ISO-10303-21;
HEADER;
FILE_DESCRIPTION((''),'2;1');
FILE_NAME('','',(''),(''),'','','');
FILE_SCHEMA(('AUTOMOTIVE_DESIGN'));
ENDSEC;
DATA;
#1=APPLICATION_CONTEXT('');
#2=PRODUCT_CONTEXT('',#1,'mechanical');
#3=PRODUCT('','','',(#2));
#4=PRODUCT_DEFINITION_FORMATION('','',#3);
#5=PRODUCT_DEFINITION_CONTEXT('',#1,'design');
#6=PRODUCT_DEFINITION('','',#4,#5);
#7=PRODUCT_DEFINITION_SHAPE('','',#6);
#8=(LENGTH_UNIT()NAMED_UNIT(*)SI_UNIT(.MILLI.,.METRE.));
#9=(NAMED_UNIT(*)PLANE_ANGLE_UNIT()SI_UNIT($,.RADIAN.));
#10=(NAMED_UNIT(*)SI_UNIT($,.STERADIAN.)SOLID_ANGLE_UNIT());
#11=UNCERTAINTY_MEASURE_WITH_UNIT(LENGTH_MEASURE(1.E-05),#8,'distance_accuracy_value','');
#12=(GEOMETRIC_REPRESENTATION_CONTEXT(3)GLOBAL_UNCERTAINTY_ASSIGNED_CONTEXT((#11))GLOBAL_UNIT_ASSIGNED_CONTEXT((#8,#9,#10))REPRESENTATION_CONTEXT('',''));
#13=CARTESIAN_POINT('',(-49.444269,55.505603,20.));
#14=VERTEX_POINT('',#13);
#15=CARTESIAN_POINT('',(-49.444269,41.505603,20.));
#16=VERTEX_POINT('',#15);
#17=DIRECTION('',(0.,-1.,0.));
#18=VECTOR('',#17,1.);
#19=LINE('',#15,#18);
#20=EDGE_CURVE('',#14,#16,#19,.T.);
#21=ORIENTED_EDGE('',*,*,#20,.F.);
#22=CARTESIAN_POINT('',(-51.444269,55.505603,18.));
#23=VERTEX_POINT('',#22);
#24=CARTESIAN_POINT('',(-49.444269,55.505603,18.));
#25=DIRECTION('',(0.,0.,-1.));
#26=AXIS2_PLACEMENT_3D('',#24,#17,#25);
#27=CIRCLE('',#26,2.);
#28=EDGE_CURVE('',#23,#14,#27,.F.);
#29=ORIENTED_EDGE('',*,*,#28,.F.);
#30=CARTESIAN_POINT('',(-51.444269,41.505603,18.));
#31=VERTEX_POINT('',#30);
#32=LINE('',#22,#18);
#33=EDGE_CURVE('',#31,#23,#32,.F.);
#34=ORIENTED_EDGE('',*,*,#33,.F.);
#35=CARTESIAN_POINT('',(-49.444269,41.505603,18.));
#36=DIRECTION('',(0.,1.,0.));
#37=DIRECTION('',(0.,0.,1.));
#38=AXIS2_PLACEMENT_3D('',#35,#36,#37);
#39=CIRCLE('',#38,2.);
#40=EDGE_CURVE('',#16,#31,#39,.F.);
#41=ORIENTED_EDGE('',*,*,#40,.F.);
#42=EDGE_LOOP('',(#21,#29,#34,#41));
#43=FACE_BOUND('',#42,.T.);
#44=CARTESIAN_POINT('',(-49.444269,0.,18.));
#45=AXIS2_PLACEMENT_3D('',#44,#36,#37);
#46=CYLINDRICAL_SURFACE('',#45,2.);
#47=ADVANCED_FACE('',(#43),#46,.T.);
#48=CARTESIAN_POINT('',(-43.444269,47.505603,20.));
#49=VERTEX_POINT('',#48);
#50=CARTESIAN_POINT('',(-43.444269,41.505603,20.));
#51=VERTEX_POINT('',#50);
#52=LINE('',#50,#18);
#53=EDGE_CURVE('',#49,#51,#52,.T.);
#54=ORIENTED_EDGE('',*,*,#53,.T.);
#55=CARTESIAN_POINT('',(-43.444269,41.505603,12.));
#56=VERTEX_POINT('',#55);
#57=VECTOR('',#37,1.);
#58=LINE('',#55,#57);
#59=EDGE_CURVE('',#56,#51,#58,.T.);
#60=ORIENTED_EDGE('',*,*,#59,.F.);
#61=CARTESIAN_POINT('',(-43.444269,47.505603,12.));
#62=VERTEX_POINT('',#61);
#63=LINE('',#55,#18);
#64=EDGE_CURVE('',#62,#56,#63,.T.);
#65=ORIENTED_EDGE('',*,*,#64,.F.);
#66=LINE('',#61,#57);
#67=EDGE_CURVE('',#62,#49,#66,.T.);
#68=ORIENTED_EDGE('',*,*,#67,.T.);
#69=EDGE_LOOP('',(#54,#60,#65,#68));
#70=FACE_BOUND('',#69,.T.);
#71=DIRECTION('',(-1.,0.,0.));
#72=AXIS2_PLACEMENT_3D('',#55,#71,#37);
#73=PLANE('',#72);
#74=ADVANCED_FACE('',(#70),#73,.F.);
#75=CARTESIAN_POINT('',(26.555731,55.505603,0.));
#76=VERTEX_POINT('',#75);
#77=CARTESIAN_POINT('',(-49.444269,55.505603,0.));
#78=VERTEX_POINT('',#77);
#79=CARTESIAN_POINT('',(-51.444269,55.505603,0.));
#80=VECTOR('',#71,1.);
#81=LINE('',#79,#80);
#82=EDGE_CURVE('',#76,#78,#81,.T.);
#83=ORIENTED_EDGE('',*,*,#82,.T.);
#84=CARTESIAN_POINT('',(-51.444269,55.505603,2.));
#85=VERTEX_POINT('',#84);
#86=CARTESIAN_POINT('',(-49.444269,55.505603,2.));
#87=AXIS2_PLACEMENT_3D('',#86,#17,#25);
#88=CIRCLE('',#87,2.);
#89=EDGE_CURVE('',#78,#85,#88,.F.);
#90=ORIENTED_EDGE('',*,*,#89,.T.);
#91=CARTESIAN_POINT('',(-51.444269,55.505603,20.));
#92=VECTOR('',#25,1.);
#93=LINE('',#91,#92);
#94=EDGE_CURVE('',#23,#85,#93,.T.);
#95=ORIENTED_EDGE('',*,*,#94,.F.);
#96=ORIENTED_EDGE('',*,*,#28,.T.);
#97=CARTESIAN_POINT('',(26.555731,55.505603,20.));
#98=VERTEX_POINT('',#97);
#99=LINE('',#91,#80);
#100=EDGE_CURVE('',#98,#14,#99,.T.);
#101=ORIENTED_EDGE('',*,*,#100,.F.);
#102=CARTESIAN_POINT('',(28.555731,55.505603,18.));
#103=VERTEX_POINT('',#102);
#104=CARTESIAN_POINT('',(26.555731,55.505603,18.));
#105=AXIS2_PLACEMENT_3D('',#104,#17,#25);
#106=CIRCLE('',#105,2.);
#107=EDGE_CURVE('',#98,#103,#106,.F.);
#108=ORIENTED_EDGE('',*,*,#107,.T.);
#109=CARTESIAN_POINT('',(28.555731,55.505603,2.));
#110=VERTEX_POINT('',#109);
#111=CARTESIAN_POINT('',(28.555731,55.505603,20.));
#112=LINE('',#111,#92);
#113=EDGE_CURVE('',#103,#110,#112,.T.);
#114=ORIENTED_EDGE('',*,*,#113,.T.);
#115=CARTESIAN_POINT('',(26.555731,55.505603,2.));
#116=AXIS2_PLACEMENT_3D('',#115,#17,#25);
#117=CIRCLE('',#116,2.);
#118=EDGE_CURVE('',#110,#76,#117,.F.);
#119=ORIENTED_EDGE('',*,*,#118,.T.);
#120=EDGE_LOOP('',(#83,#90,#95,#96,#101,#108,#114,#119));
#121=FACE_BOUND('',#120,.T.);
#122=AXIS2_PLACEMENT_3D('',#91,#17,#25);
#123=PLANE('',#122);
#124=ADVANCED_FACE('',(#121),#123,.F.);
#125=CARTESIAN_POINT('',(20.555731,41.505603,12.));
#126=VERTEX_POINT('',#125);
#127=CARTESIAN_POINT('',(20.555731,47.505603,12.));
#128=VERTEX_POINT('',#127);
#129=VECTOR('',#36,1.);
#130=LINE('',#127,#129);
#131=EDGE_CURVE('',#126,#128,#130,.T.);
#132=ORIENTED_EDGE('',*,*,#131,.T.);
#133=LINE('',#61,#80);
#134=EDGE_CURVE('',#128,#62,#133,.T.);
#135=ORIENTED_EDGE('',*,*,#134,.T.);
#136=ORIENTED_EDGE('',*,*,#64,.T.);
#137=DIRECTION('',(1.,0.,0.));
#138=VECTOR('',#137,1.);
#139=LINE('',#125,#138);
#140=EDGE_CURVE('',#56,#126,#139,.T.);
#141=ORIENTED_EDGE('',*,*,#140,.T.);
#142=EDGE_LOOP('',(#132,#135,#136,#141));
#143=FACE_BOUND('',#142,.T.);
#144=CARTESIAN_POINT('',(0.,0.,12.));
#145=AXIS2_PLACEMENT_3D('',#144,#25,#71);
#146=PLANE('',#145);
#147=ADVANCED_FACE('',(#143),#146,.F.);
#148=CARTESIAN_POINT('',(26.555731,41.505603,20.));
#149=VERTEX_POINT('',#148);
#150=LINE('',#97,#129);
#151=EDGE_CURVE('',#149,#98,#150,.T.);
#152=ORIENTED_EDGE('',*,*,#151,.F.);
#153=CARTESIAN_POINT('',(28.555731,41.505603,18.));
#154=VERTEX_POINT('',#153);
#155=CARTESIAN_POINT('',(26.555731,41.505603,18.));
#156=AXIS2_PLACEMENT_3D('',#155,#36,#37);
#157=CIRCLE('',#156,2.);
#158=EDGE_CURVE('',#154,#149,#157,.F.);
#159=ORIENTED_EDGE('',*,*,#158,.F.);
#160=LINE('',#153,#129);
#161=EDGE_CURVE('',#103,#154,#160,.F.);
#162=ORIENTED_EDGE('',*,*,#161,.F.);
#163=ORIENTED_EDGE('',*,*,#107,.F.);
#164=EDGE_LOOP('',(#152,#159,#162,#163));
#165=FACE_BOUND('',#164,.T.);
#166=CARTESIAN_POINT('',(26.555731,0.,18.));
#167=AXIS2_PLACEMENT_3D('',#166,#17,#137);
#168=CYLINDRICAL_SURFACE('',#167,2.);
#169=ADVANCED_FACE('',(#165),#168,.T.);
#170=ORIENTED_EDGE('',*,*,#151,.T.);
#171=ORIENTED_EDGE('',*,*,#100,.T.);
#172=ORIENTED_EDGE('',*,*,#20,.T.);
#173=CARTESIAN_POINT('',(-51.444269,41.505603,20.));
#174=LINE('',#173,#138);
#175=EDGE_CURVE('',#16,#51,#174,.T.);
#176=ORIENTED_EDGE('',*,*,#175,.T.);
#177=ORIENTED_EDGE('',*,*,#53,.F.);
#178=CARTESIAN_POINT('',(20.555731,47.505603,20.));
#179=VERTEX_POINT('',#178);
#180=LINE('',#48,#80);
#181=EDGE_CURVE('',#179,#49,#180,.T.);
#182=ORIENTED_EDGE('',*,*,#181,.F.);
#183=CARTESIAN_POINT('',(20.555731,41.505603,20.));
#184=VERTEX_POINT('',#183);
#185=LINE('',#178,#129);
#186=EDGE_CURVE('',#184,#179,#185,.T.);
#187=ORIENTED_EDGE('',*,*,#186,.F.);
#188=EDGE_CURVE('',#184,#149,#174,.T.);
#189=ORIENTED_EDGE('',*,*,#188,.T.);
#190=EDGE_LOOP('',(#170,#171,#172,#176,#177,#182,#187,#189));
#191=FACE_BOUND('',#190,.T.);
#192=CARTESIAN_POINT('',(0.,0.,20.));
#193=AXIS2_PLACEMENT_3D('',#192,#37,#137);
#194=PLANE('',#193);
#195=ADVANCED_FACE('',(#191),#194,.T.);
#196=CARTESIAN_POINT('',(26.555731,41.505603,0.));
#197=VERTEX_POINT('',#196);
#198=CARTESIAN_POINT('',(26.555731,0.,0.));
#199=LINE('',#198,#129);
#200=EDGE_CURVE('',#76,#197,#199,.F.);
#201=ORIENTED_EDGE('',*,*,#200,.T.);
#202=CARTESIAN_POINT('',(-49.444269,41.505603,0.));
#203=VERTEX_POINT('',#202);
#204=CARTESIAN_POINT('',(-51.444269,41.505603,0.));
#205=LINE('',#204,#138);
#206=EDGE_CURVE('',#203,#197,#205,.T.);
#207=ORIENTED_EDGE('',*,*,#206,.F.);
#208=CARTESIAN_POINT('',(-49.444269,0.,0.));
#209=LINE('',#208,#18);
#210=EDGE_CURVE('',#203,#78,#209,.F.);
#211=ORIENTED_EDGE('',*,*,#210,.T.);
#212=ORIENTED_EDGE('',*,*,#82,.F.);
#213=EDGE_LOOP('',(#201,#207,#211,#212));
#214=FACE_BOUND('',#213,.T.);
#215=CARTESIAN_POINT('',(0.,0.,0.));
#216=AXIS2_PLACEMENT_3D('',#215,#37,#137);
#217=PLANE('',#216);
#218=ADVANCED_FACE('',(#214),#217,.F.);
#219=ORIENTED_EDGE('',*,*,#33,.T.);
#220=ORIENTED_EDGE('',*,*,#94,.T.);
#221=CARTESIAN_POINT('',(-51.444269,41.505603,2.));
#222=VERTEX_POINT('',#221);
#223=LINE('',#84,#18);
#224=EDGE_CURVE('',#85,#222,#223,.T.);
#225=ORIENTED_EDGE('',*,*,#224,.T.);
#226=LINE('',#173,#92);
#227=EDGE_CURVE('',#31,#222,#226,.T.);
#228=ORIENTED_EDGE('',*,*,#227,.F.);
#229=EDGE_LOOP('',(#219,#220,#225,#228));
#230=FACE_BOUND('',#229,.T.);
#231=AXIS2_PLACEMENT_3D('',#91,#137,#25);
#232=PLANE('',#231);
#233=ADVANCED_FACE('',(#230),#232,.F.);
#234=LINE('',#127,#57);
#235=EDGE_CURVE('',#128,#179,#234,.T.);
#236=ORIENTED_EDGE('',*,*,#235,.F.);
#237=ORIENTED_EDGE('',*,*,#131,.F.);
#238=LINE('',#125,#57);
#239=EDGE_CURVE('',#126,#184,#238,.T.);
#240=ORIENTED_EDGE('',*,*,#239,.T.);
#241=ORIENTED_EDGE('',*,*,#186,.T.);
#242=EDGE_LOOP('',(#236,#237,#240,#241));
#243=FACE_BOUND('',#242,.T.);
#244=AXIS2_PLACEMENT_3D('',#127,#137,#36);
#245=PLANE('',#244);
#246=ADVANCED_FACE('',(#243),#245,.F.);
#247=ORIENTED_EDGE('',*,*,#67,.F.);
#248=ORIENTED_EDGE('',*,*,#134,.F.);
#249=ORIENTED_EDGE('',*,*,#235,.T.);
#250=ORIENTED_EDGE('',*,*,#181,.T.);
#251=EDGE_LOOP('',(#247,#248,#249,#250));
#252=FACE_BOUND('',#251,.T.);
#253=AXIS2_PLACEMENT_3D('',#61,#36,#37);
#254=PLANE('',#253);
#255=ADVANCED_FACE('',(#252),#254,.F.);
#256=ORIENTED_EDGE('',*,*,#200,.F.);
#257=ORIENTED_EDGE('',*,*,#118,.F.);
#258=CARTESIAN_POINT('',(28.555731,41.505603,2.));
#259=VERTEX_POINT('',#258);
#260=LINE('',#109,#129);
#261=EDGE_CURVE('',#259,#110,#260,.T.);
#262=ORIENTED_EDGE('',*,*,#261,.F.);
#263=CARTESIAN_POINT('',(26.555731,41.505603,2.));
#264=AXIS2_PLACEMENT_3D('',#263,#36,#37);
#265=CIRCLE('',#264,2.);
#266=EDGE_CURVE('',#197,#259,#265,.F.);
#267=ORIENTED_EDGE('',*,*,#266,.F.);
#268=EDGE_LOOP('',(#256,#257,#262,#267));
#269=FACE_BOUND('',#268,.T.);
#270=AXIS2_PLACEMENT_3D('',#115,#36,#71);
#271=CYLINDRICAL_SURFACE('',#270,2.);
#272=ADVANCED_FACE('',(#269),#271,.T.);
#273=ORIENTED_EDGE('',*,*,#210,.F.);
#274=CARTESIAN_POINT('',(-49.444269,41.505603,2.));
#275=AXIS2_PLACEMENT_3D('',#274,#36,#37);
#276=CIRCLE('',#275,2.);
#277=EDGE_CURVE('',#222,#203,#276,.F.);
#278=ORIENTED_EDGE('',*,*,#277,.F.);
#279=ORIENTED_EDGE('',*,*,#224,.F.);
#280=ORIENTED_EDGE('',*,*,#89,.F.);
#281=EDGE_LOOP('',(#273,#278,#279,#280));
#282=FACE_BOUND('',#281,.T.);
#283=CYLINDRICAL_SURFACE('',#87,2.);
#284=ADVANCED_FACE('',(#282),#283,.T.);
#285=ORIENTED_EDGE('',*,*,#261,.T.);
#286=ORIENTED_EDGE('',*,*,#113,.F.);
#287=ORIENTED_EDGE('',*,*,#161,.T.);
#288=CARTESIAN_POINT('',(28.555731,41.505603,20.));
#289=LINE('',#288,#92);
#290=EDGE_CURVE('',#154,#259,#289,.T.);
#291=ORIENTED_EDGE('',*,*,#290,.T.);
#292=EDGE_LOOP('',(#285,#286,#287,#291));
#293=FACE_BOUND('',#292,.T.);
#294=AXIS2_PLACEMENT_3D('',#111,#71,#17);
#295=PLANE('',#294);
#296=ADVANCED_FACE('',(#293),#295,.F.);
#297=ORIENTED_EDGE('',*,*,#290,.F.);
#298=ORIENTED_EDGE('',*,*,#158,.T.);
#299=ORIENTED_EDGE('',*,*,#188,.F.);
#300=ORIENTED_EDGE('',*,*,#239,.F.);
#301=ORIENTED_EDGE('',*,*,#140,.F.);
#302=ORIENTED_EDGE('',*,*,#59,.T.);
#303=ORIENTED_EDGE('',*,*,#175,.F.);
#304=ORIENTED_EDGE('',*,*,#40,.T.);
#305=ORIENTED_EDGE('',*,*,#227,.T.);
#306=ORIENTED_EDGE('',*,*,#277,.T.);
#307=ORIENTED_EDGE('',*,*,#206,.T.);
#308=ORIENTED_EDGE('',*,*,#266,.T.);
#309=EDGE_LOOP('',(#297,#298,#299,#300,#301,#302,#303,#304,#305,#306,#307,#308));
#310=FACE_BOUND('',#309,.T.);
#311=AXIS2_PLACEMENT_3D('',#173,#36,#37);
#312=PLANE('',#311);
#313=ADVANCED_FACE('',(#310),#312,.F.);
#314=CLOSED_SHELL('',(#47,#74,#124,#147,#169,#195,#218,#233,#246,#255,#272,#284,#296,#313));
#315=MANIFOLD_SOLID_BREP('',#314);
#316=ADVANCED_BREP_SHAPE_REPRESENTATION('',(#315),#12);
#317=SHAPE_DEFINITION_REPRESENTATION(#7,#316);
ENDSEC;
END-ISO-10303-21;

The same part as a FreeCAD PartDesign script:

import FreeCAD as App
import Part
import Sketcher
from FreeCAD import Vector


def edges_at(feature, points):
    """Names of the edges that pass closest to the given points."""
    edges = feature.Shape.Edges
    near = lambda p: min(range(len(edges)), key=lambda i: edges[i].distToShape(Part.Vertex(*p))[0])
    return sorted({f"Edge{near(p) + 1}" for p in points})


def add_polygon(sketch, points):
    """Adds a closed chain of lines whose ends are joined by coincident constraints."""
    first, n = sketch.GeometryCount, len(points)
    for a, b in zip(points, points[1:] + points[:1]):
        sketch.addGeometry(Part.LineSegment(App.Vector(*a, 0), App.Vector(*b, 0)), False)
    for i in range(n):
        sketch.addConstraint(Sketcher.Constraint("Coincident", first + i, 2, first + (i + 1) % n, 1))

doc = App.newDocument("Part")
body = doc.addObject("PartDesign::Body", "Body")

# Sketch on XY plane
sketch1 = doc.addObject("Sketcher::SketchObject", "Sketch")
body.addObject(sketch1)
sketch1.AttachmentSupport = (doc.XY_Plane, [""])
sketch1.MapMode = "FlatFace"
add_polygon(sketch1, [(-51, 56), (-51, 42), (29, 42), (29, 56)])  # lines 0-3
sketch1.addConstraint([
    Sketcher.Constraint("Vertical", 0),
    Sketcher.Constraint("Horizontal", 1),
    Sketcher.Constraint("Vertical", 2),
    Sketcher.Constraint("Horizontal", 3),
    Sketcher.Constraint("DistanceX", 1, 1, 1, 2, 80.0),
    Sketcher.Constraint("DistanceY", 0, 2, 0, 1, 14.0),
    Sketcher.Constraint("DistanceX", 0, 2, -1, 1, 51.444269),
    Sketcher.Constraint("DistanceY", -1, 1, 0, 2, 41.505603),
])
pad1 = doc.addObject("PartDesign::Pad", "Pad")
body.addObject(pad1)
pad1.Profile = sketch1
pad1.Length = 20

# Sketch on XY plane
sketch2 = doc.addObject("Sketcher::SketchObject", "Sketch001")
body.addObject(sketch2)
sketch2.AttachmentSupport = (doc.XY_Plane, [""])
sketch2.MapMode = "FlatFace"
sketch2.AttachmentOffset = App.Placement(Vector(0, 0, 20), App.Rotation())
add_polygon(sketch2, [(-43, 42), (21, 42), (21, 48), (-43, 48)])  # lines 0-3
sketch2.addConstraint([
    Sketcher.Constraint("Horizontal", 0),
    Sketcher.Constraint("Vertical", 1),
    Sketcher.Constraint("Horizontal", 2),
    Sketcher.Constraint("Vertical", 3),
    Sketcher.Constraint("DistanceX", 0, 1, 0, 2, 64.0),
    Sketcher.Constraint("DistanceY", 1, 1, 1, 2, 6.0),
    Sketcher.Constraint("DistanceX", -1, 1, 0, 2, 20.555731),
    Sketcher.Constraint("DistanceY", -1, 1, 0, 2, 41.505603),
])
pocket1 = doc.addObject("PartDesign::Pocket", "Pocket")
body.addObject(pocket1)
pocket1.Profile = sketch2
pocket1.Length = 8
doc.recompute()

fillet = doc.addObject("PartDesign::Fillet", "Fillet")
body.addObject(fillet)
fillet.Base = (pocket1, edges_at(pocket1, [
    (28.556, 48.506, 20),
    (-51.444, 48.506, 20),
    (28.556, 48.506, 0),
    (-51.444, 48.506, 0),
]))
fillet.Radius = 2

doc.recompute()
